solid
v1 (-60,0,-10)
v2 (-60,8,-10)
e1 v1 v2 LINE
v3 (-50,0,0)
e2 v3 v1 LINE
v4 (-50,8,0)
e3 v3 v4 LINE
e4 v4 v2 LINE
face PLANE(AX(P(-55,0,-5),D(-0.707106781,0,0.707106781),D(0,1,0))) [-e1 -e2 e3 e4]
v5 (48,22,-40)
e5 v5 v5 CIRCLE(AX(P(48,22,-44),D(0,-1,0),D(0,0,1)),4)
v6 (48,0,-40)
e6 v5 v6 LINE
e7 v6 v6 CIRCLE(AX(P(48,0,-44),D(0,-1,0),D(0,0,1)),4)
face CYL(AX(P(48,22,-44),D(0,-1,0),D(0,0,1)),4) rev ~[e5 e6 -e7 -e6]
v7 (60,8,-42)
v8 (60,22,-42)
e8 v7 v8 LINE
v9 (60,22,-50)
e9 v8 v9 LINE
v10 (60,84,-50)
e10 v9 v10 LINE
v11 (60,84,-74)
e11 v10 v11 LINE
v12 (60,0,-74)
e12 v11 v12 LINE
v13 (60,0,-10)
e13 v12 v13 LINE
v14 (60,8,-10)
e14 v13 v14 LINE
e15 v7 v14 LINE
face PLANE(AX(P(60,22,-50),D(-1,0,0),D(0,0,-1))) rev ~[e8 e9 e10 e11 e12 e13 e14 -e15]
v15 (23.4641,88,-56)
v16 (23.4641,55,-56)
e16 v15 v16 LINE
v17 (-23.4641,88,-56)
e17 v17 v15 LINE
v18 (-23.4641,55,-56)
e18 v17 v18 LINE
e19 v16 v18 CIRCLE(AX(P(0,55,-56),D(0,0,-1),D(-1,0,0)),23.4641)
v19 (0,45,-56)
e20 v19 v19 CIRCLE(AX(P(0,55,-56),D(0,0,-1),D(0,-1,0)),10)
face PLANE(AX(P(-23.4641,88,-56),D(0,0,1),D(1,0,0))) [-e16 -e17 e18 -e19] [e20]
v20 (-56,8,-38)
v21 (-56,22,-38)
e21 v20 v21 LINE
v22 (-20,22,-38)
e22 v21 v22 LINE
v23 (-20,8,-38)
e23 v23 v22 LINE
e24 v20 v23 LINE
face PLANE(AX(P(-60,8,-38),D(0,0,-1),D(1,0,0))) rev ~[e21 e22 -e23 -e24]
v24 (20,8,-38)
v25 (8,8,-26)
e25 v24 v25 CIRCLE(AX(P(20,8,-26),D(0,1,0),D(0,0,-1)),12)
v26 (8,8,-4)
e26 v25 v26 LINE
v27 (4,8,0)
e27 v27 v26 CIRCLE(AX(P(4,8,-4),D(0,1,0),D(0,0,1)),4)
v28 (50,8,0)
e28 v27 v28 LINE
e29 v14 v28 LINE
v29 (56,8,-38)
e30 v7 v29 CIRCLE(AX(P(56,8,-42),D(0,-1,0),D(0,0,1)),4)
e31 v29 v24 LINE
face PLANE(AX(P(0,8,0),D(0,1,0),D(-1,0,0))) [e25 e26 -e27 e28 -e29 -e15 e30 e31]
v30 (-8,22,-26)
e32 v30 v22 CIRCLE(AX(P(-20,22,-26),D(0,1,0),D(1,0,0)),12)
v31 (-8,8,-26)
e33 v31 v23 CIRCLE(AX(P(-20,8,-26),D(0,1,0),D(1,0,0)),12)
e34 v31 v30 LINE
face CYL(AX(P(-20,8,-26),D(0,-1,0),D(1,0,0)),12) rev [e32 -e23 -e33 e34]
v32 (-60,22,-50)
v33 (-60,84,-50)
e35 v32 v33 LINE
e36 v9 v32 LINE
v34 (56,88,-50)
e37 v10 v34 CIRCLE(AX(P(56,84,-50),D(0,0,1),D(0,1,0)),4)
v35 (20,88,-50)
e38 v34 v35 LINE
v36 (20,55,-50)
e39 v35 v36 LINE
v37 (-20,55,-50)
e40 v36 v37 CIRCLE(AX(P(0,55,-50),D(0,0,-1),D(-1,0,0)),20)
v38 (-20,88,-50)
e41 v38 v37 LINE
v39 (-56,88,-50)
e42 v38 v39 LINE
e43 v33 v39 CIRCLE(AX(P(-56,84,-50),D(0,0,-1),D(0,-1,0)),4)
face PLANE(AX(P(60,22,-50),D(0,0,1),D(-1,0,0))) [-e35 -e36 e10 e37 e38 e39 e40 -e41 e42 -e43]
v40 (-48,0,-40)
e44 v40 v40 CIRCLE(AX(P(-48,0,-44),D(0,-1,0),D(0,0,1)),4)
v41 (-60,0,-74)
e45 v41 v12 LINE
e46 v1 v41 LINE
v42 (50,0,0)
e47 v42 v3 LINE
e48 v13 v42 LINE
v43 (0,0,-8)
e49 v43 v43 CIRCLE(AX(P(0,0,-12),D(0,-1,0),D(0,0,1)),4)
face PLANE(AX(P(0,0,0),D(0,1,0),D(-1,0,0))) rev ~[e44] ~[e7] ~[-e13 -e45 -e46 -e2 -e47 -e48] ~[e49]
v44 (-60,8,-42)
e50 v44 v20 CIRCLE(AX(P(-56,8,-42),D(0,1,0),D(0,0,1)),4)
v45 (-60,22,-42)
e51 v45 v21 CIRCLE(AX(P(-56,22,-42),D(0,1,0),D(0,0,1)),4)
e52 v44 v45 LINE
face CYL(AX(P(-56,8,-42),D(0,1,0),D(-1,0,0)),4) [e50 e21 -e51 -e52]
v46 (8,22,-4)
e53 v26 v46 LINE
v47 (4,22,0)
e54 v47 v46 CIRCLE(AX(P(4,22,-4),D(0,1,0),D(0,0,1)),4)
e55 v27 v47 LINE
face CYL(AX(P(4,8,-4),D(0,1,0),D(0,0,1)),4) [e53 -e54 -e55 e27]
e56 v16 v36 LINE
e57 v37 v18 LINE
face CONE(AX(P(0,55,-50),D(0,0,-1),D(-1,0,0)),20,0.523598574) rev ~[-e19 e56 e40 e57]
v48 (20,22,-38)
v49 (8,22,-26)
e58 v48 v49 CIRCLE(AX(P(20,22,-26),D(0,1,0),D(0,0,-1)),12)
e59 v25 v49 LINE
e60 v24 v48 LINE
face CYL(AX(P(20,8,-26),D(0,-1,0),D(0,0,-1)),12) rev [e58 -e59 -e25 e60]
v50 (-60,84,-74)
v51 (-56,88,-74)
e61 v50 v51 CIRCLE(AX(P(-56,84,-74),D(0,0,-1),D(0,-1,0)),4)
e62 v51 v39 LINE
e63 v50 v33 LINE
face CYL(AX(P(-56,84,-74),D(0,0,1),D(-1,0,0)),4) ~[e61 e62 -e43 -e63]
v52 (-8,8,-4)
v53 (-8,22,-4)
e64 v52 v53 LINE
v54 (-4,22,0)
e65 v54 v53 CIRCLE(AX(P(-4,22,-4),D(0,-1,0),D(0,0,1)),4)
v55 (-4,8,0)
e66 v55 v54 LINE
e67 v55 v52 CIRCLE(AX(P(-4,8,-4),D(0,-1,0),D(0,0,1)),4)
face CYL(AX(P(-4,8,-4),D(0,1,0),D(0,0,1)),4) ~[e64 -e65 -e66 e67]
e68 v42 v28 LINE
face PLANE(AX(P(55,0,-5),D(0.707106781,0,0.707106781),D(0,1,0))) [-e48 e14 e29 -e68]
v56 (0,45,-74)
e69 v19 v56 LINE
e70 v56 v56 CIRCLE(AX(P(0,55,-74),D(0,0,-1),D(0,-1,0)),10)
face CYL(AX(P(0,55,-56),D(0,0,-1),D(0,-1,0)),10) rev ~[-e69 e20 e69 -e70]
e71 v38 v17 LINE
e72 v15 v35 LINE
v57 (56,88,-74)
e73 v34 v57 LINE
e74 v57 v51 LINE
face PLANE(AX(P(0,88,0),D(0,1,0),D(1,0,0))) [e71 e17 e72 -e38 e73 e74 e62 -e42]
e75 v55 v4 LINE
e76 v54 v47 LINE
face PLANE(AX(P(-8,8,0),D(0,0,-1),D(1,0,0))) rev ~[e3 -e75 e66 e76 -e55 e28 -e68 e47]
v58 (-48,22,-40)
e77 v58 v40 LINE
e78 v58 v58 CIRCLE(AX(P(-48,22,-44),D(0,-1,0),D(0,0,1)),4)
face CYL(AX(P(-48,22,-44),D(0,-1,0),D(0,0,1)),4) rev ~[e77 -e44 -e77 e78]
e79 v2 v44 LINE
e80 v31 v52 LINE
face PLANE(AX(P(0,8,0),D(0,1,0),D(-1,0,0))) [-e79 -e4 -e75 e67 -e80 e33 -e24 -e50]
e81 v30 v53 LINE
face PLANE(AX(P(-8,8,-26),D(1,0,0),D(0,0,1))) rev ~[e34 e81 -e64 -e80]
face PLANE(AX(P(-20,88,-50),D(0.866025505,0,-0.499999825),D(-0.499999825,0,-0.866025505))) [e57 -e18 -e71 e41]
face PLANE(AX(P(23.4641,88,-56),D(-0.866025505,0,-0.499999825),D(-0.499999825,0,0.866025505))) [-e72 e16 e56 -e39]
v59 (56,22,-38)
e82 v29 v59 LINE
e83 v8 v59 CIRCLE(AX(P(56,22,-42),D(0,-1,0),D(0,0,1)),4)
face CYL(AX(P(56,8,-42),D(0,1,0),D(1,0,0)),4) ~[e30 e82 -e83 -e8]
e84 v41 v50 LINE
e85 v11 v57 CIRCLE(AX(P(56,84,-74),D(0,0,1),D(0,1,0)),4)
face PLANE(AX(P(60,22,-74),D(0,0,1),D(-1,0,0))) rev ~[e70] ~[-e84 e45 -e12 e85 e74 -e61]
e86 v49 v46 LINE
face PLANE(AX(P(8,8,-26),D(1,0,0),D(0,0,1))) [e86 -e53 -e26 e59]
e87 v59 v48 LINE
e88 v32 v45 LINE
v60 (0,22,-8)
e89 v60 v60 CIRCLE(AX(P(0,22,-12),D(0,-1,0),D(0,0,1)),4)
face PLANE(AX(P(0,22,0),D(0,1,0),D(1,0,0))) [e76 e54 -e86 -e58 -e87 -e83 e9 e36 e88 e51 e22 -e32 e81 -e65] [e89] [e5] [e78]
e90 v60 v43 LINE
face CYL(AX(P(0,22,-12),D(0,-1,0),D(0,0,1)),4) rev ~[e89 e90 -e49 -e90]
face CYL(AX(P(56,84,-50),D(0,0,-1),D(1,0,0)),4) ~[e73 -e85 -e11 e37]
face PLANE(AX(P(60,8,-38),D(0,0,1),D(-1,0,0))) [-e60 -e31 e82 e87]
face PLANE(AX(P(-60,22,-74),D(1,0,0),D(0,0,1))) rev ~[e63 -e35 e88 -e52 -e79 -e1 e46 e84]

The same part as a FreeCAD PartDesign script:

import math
import FreeCAD as App
import Part
import Sketcher
Q = App.Units.Quantity


def edges_at(feature, points):
    """Names of the edges that pass closest to the given points."""
    edges = feature.Shape.Edges
    near = lambda p: min(range(len(edges)), key=lambda i: edges[i].distToShape(Part.Vertex(*p))[0])
    return sorted({f"Edge{near(p) + 1}" for p in points})

doc = App.newDocument("Part")
body = doc.addObject("PartDesign::Body", "Body")

# Sketch on XZ plane
sketch1 = doc.addObject("Sketcher::SketchObject", "Sketch")
body.addObject(sketch1)
sketch1.AttachmentSupport = (doc.XZ_Plane, [""])
sketch1.MapMode = "FlatFace"
sketch1.addGeometry(Part.LineSegment(App.Vector(60, -74, 0), App.Vector(-60, -74, 0)), False)
sketch1.addGeometry(Part.LineSegment(App.Vector(-60, -74, 0), App.Vector(-60, 0, 0)), False)
sketch1.addGeometry(Part.LineSegment(App.Vector(-60, 0, 0), App.Vector(60, 0, 0)), False)
sketch1.addGeometry(Part.LineSegment(App.Vector(60, 0, 0), App.Vector(60, -74, 0)), False)
sketch1.addConstraint(Sketcher.Constraint("Coincident", 0, 2, 1, 1))
sketch1.addConstraint(Sketcher.Constraint("Coincident", 1, 2, 2, 1))
sketch1.addConstraint(Sketcher.Constraint("Coincident", 2, 2, 3, 1))
sketch1.addConstraint(Sketcher.Constraint("Coincident", 3, 2, 0, 1))
sketch1.addConstraint(Sketcher.Constraint("Horizontal", 0))
sketch1.addConstraint(Sketcher.Constraint("Vertical", 1))
sketch1.addConstraint(Sketcher.Constraint("Horizontal", 2))
sketch1.addConstraint(Sketcher.Constraint("Vertical", 3))
sketch1.addConstraint(Sketcher.Constraint("Symmetric", 1, 2, 2, 2, -1, 1))
sketch1.addConstraint(Sketcher.Constraint("DistanceX", 0, 2, 0, 1, Q("120 mm")))
sketch1.addConstraint(Sketcher.Constraint("DistanceY", 1, 1, 1, 2, Q("74 mm")))
pad1 = doc.addObject("PartDesign::Pad", "Pad")
body.addObject(pad1)
pad1.Profile = sketch1
pad1.Length = 8
pad1.Reversed = True
doc.recompute()

chamfer = doc.addObject("PartDesign::Chamfer", "Chamfer")
body.addObject(chamfer)
chamfer.Base = (pad1, edges_at(pad1, [(60, 4, 0), (-60, 4, 0)]))
chamfer.Size = 10

# Sketch on XZ plane
sketch2 = doc.addObject("Sketcher::SketchObject", "Sketch001")
body.addObject(sketch2)
sketch2.AttachmentSupport = (doc.XZ_Plane, [""])
sketch2.MapMode = "FlatFace"
sketch2.AttachmentOffset = App.Placement(App.Vector(0, 0, -8), App.Rotation())
sketch2.addGeometry(Part.LineSegment(App.Vector(-8, -26, 0), App.Vector(-8, 0, 0)), False)
sketch2.addGeometry(Part.LineSegment(App.Vector(-8, 0, 0), App.Vector(8, 0, 0)), False)
sketch2.addGeometry(Part.LineSegment(App.Vector(8, 0, 0), App.Vector(8, -26, 0)), False)
sketch2.addGeometry(Part.ArcOfCircle(Part.Circle(App.Vector(20, -26, 0), App.Vector(0, 0, 1), 12), math.radians(180), math.radians(270)), False)
sketch2.addGeometry(Part.LineSegment(App.Vector(20, -38, 0), App.Vector(60, -38, 0)), False)
sketch2.addGeometry(Part.LineSegment(App.Vector(60, -38, 0), App.Vector(60, -74, 0)), False)
sketch2.addGeometry(Part.LineSegment(App.Vector(60, -74, 0), App.Vector(-60, -74, 0)), False)
sketch2.addGeometry(Part.LineSegment(App.Vector(-60, -74, 0), App.Vector(-60, -38, 0)), False)
sketch2.addGeometry(Part.LineSegment(App.Vector(-60, -38, 0), App.Vector(-20, -38, 0)), False)
sketch2.addGeometry(Part.ArcOfCircle(Part.Circle(App.Vector(-20, -26, 0), App.Vector(0, 0, 1), 12), math.radians(-90), math.radians(0)), False)
sketch2.addConstraint(Sketcher.Constraint("Coincident", 0, 2, 1, 1))
sketch2.addConstraint(Sketcher.Constraint("Coincident", 1, 2, 2, 1))
sketch2.addConstraint(Sketcher.Constraint("Tangent", 2, 2, 3, 1))
sketch2.addConstraint(Sketcher.Constraint("Tangent", 3, 2, 4, 1))
sketch2.addConstraint(Sketcher.Constraint("Coincident", 4, 2, 5, 1))
sketch2.addConstraint(Sketcher.Constraint("Coincident", 5, 2, 6, 1))
sketch2.addConstraint(Sketcher.Constraint("Coincident", 6, 2, 7, 1))
sketch2.addConstraint(Sketcher.Constraint("Coincident", 7, 2, 8, 1))
sketch2.addConstraint(Sketcher.Constraint("Tangent", 8, 2, 9, 1))
sketch2.addConstraint(Sketcher.Constraint("Tangent", 9, 2, 0, 1))
sketch2.addConstraint(Sketcher.Constraint("Vertical", 0))
sketch2.addConstraint(Sketcher.Constraint("Horizontal", 1))
sketch2.addConstraint(Sketcher.Constraint("Vertical", 2))
sketch2.addConstraint(Sketcher.Constraint("Horizontal", 4))
sketch2.addConstraint(Sketcher.Constraint("Vertical", 5))
sketch2.addConstraint(Sketcher.Constraint("Horizontal", 6))
sketch2.addConstraint(Sketcher.Constraint("Vertical", 7))
sketch2.addConstraint(Sketcher.Constraint("Horizontal", 8))
sketch2.addConstraint(Sketcher.Constraint("Equal", 3, 9))
sketch2.addConstraint(Sketcher.Constraint("Symmetric", 0, 2, 1, 2, -1, 1))
sketch2.addConstraint(Sketcher.Constraint("Symmetric", 4, 2, 7, 2, -2))
sketch2.addConstraint(Sketcher.Constraint("Radius", 3, Q("12 mm")))
sketch2.addConstraint(Sketcher.Constraint("DistanceX", 1, 1, 1, 2, Q("16 mm")))
sketch2.addConstraint(Sketcher.Constraint("DistanceY", 3, 2, -1, 1, Q("38 mm")))
sketch2.addConstraint(Sketcher.Constraint("DistanceX", 4, 1, 4, 2, Q("40 mm")))
sketch2.addConstraint(Sketcher.Constraint("DistanceY", 5, 2, 5, 1, Q("36 mm")))
pad2 = doc.addObject("PartDesign::Pad", "Pad001")
body.addObject(pad2)
pad2.Profile = sketch2
pad2.Length = 14
pad2.Reversed = True

# Sketch on XZ plane
sketch3 = doc.addObject("Sketcher::SketchObject", "Sketch002")
body.addObject(sketch3)
sketch3.AttachmentSupport = (doc.XZ_Plane, [""])
sketch3.MapMode = "FlatFace"
sketch3.AttachmentOffset = App.Placement(App.Vector(0, 0, -22), App.Rotation())
sketch3.addGeometry(Part.LineSegment(App.Vector(60, -74, 0), App.Vector(-60, -74, 0)), False)
sketch3.addGeometry(Part.LineSegment(App.Vector(-60, -74, 0), App.Vector(-60, -50, 0)), False)
sketch3.addGeometry(Part.LineSegment(App.Vector(-60, -50, 0), App.Vector(60, -50, 0)), False)
sketch3.addGeometry(Part.LineSegment(App.Vector(60, -50, 0), App.Vector(60, -74, 0)), False)
sketch3.addConstraint(Sketcher.Constraint("Coincident", 0, 2, 1, 1))
sketch3.addConstraint(Sketcher.Constraint("Coincident", 1, 2, 2, 1))
sketch3.addConstraint(Sketcher.Constraint("Coincident", 2, 2, 3, 1))
sketch3.addConstraint(Sketcher.Constraint("Coincident", 3, 2, 0, 1))
sketch3.addConstraint(Sketcher.Constraint("Horizontal", 0))
sketch3.addConstraint(Sketcher.Constraint("Vertical", 1))
sketch3.addConstraint(Sketcher.Constraint("Horizontal", 2))
sketch3.addConstraint(Sketcher.Constraint("Vertical", 3))
sketch3.addConstraint(Sketcher.Constraint("DistanceY", 1, 1, 1, 2, Q("24 mm")))
sketch3.addConstraint(Sketcher.Constraint("DistanceX", 0, 2, 0, 1, Q("120 mm")))
sketch3.addConstraint(Sketcher.Constraint("DistanceX", 0, 2, -1, 1, Q("60 mm")))
sketch3.addConstraint(Sketcher.Constraint("DistanceY", 0, 2, -1, 1, Q("74 mm")))
pad3 = doc.addObject("PartDesign::Pad", "Pad002")
body.addObject(pad3)
pad3.Profile = sketch3
pad3.Length = 66
pad3.Reversed = True
doc.recompute()

fillet = doc.addObject("PartDesign::Fillet", "Fillet")
body.addObject(fillet)
fillet.Base = (pad3, edges_at(pad3, [
    (60, 88, -62),
    (-60, 88, -62),
    (-60, 15, -38),
    (-8, 15, 0),
    (8, 15, 0),
    (60, 15, -38),
]))
fillet.Radius = 4

# Sketch on XZ plane
sketch4 = doc.addObject("Sketcher::SketchObject", "Sketch003")
body.addObject(sketch4)
sketch4.AttachmentSupport = (doc.XZ_Plane, [""])
sketch4.MapMode = "FlatFace"
sketch4.AttachmentOffset = App.Placement(App.Vector(0, 0, -88), App.Rotation())
sketch4.addGeometry(Part.LineSegment(App.Vector(-23, -56, 0), App.Vector(-20, -50, 0)), False)
sketch4.addGeometry(Part.LineSegment(App.Vector(-20, -50, 0), App.Vector(20, -50, 0)), False)
sketch4.addGeometry(Part.LineSegment(App.Vector(20, -50, 0), App.Vector(23, -56, 0)), False)
sketch4.addGeometry(Part.LineSegment(App.Vector(23, -56, 0), App.Vector(-23, -56, 0)), False)
sketch4.addConstraint(Sketcher.Constraint("Coincident", 0, 2, 1, 1))
sketch4.addConstraint(Sketcher.Constraint("Coincident", 1, 2, 2, 1))
sketch4.addConstraint(Sketcher.Constraint("Coincident", 2, 2, 3, 1))
sketch4.addConstraint(Sketcher.Constraint("Coincident", 3, 2, 0, 1))
sketch4.addConstraint(Sketcher.Constraint("Horizontal", 1))
sketch4.addConstraint(Sketcher.Constraint("Horizontal", 3))
sketch4.addConstraint(Sketcher.Constraint("Equal", 0, 2))
sketch4.addConstraint(Sketcher.Constraint("DistanceX", 1, 1, 1, 2, Q("40 mm")))
sketch4.addConstraint(Sketcher.Constraint("Angle", 0, Q("60 deg")))
sketch4.addConstraint(Sketcher.Constraint("DistanceY", 2, 2, 1, 2, Q("6 mm")))
sketch4.addConstraint(Sketcher.Constraint("DistanceX", 0, 2, -1, 1, Q("20 mm")))
sketch4.addConstraint(Sketcher.Constraint("DistanceY", 0, 2, -1, 1, Q("50 mm")))
pocket1 = doc.addObject("PartDesign::Pocket", "Pocket")
body.addObject(pocket1)
pocket1.Profile = sketch4
pocket1.Length = 33
pocket1.Reversed = True

# Sketch on XZ plane
sketch5 = doc.addObject("Sketcher::SketchObject", "Sketch004")
body.addObject(sketch5)
sketch5.AttachmentSupport = (doc.XZ_Plane, [""])
sketch5.MapMode = "FlatFace"
sketch5.AttachmentOffset = App.Placement(App.Vector(0, 0, -55), App.Rotation())
sketch5.addGeometry(Part.LineSegment(App.Vector(-23, -56, 0), App.Vector(-20, -50, 0)), False)
sketch5.addGeometry(Part.LineSegment(App.Vector(-20, -50, 0), App.Vector(0, -50, 0)), False)
sketch5.addGeometry(Part.LineSegment(App.Vector(0, -50, 0), App.Vector(0, -56, 0)), False)
sketch5.addGeometry(Part.LineSegment(App.Vector(0, -56, 0), App.Vector(-23, -56, 0)), False)
sketch5.addConstraint(Sketcher.Constraint("Coincident", 0, 2, 1, 1))
sketch5.addConstraint(Sketcher.Constraint("Coincident", 1, 2, 2, 1))
sketch5.addConstraint(Sketcher.Constraint("Coincident", 2, 2, 3, 1))
sketch5.addConstraint(Sketcher.Constraint("Coincident", 3, 2, 0, 1))
sketch5.addConstraint(Sketcher.Constraint("Horizontal", 1))
sketch5.addConstraint(Sketcher.Constraint("Vertical", 2))
sketch5.addConstraint(Sketcher.Constraint("Horizontal", 3))
sketch5.addConstraint(Sketcher.Constraint("PointOnObject", 1, 2, -2))
sketch5.addConstraint(Sketcher.Constraint("DistanceX", 1, 1, 1, 2, Q("20 mm")))
sketch5.addConstraint(Sketcher.Constraint("DistanceY", 2, 2, 2, 1, Q("6 mm")))
sketch5.addConstraint(Sketcher.Constraint("Angle", 0, Q("60 deg")))
sketch5.addConstraint(Sketcher.Constraint("DistanceY", 0, 2, -1, 1, Q("50 mm")))
groove = doc.addObject("PartDesign::Groove", "Groove")
body.addObject(groove)
groove.Profile = sketch5
groove.ReferenceAxis = (sketch5, ["V_Axis"])
groove.Angle = 360

# Sketch on XY plane
sketch6 = doc.addObject("Sketcher::SketchObject", "Sketch005")
body.addObject(sketch6)
sketch6.AttachmentSupport = (doc.XY_Plane, [""])
sketch6.MapMode = "FlatFace"
sketch6.AttachmentOffset = App.Placement(App.Vector(0, 0, -56), App.Rotation())
sketch6.addGeometry(Part.Circle(App.Vector(0, 55, 0), App.Vector(0, 0, 1), 10), False)
sketch6.addConstraint(Sketcher.Constraint("PointOnObject", 0, 3, -2))
sketch6.addConstraint(Sketcher.Constraint("Diameter", 0, Q("20 mm")))
sketch6.addConstraint(Sketcher.Constraint("DistanceY", -1, 1, 0, 3, Q("55 mm")))
doc.recompute()
hole = doc.addObject("PartDesign::Hole", "Hole")
body.addObject(hole)
hole.Profile = sketch6
hole.ThreadType = "None"
hole.Diameter = 20
hole.DepthType = "ThroughAll"

# Sketch on XZ plane
sketch7 = doc.addObject("Sketcher::SketchObject", "Sketch006")
body.addObject(sketch7)
sketch7.AttachmentSupport = (doc.XZ_Plane, [""])
sketch7.MapMode = "FlatFace"
sketch7.AttachmentOffset = App.Placement(App.Vector(0, 0, -22), App.Rotation())
sketch7.addGeometry(Part.Circle(App.Vector(-48, -44, 0), App.Vector(0, 0, 1), 4), False)
sketch7.addGeometry(Part.Circle(App.Vector(48, -44, 0), App.Vector(0, 0, 1), 4), False)
sketch7.addGeometry(Part.Circle(App.Vector(0, -12, 0), App.Vector(0, 0, 1), 4), False)
sketch7.addConstraint(Sketcher.Constraint("Equal", 0, 1))
sketch7.addConstraint(Sketcher.Constraint("Equal", 1, 2))
sketch7.addConstraint(Sketcher.Constraint("Symmetric", 0, 3, 1, 3, -2))
sketch7.addConstraint(Sketcher.Constraint("PointOnObject", 2, 3, -2))
sketch7.addConstraint(Sketcher.Constraint("Diameter", 0, Q("8 mm")))
sketch7.addConstraint(Sketcher.Constraint("DistanceX", 0, 3, -1, 1, Q("48 mm")))
sketch7.addConstraint(Sketcher.Constraint("DistanceY", 0, 3, -1, 1, Q("44 mm")))
sketch7.addConstraint(Sketcher.Constraint("DistanceY", 2, 3, -1, 1, Q("12 mm")))
doc.recompute()
hole2 = doc.addObject("PartDesign::Hole", "Hole001")
body.addObject(hole2)
hole2.Profile = sketch7
hole2.ThreadType = "None"
hole2.Diameter = 8
hole2.DepthType = "ThroughAll"
hole2.Reversed = True

doc.recompute()
